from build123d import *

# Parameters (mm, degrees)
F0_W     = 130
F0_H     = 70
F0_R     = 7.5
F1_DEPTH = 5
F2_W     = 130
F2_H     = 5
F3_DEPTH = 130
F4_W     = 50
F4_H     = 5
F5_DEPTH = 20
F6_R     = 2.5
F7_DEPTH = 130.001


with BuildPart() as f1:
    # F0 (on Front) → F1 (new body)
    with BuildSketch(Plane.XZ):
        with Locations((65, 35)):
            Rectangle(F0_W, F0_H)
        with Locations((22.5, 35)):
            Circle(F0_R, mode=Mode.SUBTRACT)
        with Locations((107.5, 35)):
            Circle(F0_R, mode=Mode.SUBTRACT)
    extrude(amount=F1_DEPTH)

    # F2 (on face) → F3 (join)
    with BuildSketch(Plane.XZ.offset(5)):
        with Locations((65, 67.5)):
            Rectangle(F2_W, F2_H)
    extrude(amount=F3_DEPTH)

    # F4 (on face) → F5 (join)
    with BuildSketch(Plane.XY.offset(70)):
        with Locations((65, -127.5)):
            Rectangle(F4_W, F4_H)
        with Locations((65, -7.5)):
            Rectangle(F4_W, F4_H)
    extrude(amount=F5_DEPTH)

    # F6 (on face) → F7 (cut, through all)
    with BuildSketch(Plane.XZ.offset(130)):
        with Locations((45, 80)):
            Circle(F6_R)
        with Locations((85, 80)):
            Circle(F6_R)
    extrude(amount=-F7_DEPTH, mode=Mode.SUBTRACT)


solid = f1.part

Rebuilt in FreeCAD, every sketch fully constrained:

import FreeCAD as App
import Part
import Sketcher
from FreeCAD import Vector


def add_polygon(sketch, points):
    """Adds a closed chain of lines whose ends are joined by coincident constraints."""
    first, n = sketch.GeometryCount, len(points)
    for a, b in zip(points, points[1:] + points[:1]):
        sketch.addGeometry(Part.LineSegment(App.Vector(*a, 0), App.Vector(*b, 0)), False)
    for i in range(n):
        sketch.addConstraint(Sketcher.Constraint("Coincident", first + i, 2, first + (i + 1) % n, 1))

doc = App.newDocument("Part")
params = doc.addObject("Spreadsheet::Sheet", "Params")
for row, (alias, value) in enumerate([
    ("sketch1_diameter", "15 mm"),
    ("sketch1_width", "130 mm"),
    ("sketch1_height", "70 mm"),
    ("pad1_length", "5 mm"),
    ("sketch2_width", "130 mm"),
    ("sketch2_height", "5 mm"),
    ("pad2_length", "130 mm"),
    ("sketch3_width", "50 mm"),
    ("sketch3_height", "5 mm"),
    ("pad3_length", "20 mm"),
    ("sketch4_diameter", "5 mm"),
], start=1):
    params.set(f"A{row}", alias)
    params.set(f"B{row}", "=" + value)
    params.setAlias(f"B{row}", alias)

body = doc.addObject("PartDesign::Body", "Body")

sketch1 = body.newObject("Sketcher::SketchObject", "Sketch")
sketch1.AttachmentSupport = (doc.getObject("XZ_Plane"), [""])
sketch1.MapMode = "FlatFace"
add_polygon(sketch1, [(0, 70), (0, 0), (130, 0), (130, 70)])
sketch1.addGeometry(Part.Circle(Vector(22, 35, 0), Vector(0, 0, 1), 8), False)
sketch1.addGeometry(Part.Circle(Vector(108, 35, 0), Vector(0, 0, 1), 8), False)
sketch1.addConstraint([
    Sketcher.Constraint("Vertical", 0),
    Sketcher.Constraint("Horizontal", 1),
    Sketcher.Constraint("Vertical", 2),
    Sketcher.Constraint("Horizontal", 3),
    Sketcher.Constraint("Coincident", 0, 2, -1, 1),
    Sketcher.Constraint("Equal", 4, 5),
    Sketcher.Constraint("Horizontal", 4, 3, 5, 3),
    Sketcher.Constraint("Diameter", 4, 15.0),
    Sketcher.Constraint("DistanceX", 1, 1, 1, 2, 130.0),
    Sketcher.Constraint("DistanceY", 0, 2, 0, 1, 70.0),
    Sketcher.Constraint("DistanceY", -1, 1, 4, 3, 35.0),
    Sketcher.Constraint("DistanceX", 4, 3, 5, 3, 85.0),
    Sketcher.Constraint("DistanceX", -1, 1, 4, 3, 22.5),
])
sketch1.setExpression("Constraints[11]", "Params.sketch1_diameter")
sketch1.setExpression("Constraints[12]", "Params.sketch1_width")
sketch1.setExpression("Constraints[13]", "Params.sketch1_height")
pad1 = body.newObject("PartDesign::Pad", "Pad")
pad1.Profile = sketch1
pad1.setExpression("Length", "Params.pad1_length")

sketch2 = body.newObject("Sketcher::SketchObject", "Sketch001")
sketch2.AttachmentSupport = (doc.getObject("XZ_Plane"), [""])
sketch2.MapMode = "FlatFace"
sketch2.AttachmentOffset = App.Placement(Vector(0, 0, 5), App.Rotation())
add_polygon(sketch2, [(0, 70), (0, 65), (130, 65), (130, 70)])
sketch2.addConstraint([
    Sketcher.Constraint("Vertical", 0),
    Sketcher.Constraint("Horizontal", 1),
    Sketcher.Constraint("Vertical", 2),
    Sketcher.Constraint("Horizontal", 3),
    Sketcher.Constraint("PointOnObject", 0, 2, -2),
    Sketcher.Constraint("DistanceX", 1, 1, 1, 2, 130.0),
    Sketcher.Constraint("DistanceY", 0, 2, 0, 1, 5.0),
    Sketcher.Constraint("DistanceY", -1, 1, 0, 2, 65.0),
])
sketch2.setExpression("Constraints[9]", "Params.sketch2_width")
sketch2.setExpression("Constraints[10]", "Params.sketch2_height")
pad2 = body.newObject("PartDesign::Pad", "Pad001")
pad2.Profile = sketch2
pad2.setExpression("Length", "Params.pad2_length")

sketch3 = body.newObject("Sketcher::SketchObject", "Sketch002")
sketch3.AttachmentSupport = (doc.getObject("XY_Plane"), [""])
sketch3.MapMode = "FlatFace"
sketch3.AttachmentOffset = App.Placement(Vector(0, 0, 70), App.Rotation())
add_polygon(sketch3, [(40, -125), (40, -130), (90, -130), (90, -125)])
add_polygon(sketch3, [(40, -5), (40, -10), (90, -10), (90, -5)])
sketch3.addConstraint([
    Sketcher.Constraint("Vertical", 0),
    Sketcher.Constraint("Horizontal", 1),
    Sketcher.Constraint("Vertical", 2),
    Sketcher.Constraint("Horizontal", 3),
    Sketcher.Constraint("Vertical", 4),
    Sketcher.Constraint("Horizontal", 5),
    Sketcher.Constraint("Vertical", 6),
    Sketcher.Constraint("Horizontal", 7),
    Sketcher.Constraint("Vertical", 3, 2, 4, 2),
    Sketcher.Constraint("Vertical", 2, 2, 5, 2),
    Sketcher.Constraint("Equal", 2, 4),
    Sketcher.Constraint("DistanceX", 1, 1, 1, 2, 50.0),
    Sketcher.Constraint("DistanceY", 0, 2, 0, 1, 5.0),
    Sketcher.Constraint("DistanceX", -1, 1, 0, 2, 40.0),
    Sketcher.Constraint("DistanceY", 0, 2, -1, 1, 130.0),
    Sketcher.Constraint("DistanceY", 4, 2, -1, 1, 10.0),
])
sketch3.setExpression("Constraints[19]", "Params.sketch3_width")
sketch3.setExpression("Constraints[20]", "Params.sketch3_height")
pad3 = body.newObject("PartDesign::Pad", "Pad002")
pad3.Profile = sketch3
pad3.setExpression("Length", "Params.pad3_length")

sketch4 = body.newObject("Sketcher::SketchObject", "Sketch003")
sketch4.AttachmentSupport = (doc.getObject("XZ_Plane"), [""])
sketch4.MapMode = "FlatFace"
sketch4.AttachmentOffset = App.Placement(Vector(0, 0, 130), App.Rotation())
sketch4.addGeometry([
    Part.Circle(Vector(45, 80, 0), Vector(0, 0, 1), 2.5),
    Part.Circle(Vector(85, 80, 0), Vector(0, 0, 1), 2.5),
], False)
sketch4.addConstraint([
    Sketcher.Constraint("Equal", 0, 1),
    Sketcher.Constraint("Horizontal", 0, 3, 1, 3),
    Sketcher.Constraint("Diameter", 0, 5.0),
    Sketcher.Constraint("DistanceX", -1, 1, 0, 3, 45.0),
    Sketcher.Constraint("DistanceY", -1, 1, 0, 3, 80.0),
    Sketcher.Constraint("DistanceX", -1, 1, 1, 3, 85.0),
])
sketch4.setExpression("Constraints[2]", "Params.sketch4_diameter")
pocket1 = body.newObject("PartDesign::Pocket", "Pocket")
pocket1.Profile = sketch4
pocket1.Type = "ThroughAll"

doc.recompute()
